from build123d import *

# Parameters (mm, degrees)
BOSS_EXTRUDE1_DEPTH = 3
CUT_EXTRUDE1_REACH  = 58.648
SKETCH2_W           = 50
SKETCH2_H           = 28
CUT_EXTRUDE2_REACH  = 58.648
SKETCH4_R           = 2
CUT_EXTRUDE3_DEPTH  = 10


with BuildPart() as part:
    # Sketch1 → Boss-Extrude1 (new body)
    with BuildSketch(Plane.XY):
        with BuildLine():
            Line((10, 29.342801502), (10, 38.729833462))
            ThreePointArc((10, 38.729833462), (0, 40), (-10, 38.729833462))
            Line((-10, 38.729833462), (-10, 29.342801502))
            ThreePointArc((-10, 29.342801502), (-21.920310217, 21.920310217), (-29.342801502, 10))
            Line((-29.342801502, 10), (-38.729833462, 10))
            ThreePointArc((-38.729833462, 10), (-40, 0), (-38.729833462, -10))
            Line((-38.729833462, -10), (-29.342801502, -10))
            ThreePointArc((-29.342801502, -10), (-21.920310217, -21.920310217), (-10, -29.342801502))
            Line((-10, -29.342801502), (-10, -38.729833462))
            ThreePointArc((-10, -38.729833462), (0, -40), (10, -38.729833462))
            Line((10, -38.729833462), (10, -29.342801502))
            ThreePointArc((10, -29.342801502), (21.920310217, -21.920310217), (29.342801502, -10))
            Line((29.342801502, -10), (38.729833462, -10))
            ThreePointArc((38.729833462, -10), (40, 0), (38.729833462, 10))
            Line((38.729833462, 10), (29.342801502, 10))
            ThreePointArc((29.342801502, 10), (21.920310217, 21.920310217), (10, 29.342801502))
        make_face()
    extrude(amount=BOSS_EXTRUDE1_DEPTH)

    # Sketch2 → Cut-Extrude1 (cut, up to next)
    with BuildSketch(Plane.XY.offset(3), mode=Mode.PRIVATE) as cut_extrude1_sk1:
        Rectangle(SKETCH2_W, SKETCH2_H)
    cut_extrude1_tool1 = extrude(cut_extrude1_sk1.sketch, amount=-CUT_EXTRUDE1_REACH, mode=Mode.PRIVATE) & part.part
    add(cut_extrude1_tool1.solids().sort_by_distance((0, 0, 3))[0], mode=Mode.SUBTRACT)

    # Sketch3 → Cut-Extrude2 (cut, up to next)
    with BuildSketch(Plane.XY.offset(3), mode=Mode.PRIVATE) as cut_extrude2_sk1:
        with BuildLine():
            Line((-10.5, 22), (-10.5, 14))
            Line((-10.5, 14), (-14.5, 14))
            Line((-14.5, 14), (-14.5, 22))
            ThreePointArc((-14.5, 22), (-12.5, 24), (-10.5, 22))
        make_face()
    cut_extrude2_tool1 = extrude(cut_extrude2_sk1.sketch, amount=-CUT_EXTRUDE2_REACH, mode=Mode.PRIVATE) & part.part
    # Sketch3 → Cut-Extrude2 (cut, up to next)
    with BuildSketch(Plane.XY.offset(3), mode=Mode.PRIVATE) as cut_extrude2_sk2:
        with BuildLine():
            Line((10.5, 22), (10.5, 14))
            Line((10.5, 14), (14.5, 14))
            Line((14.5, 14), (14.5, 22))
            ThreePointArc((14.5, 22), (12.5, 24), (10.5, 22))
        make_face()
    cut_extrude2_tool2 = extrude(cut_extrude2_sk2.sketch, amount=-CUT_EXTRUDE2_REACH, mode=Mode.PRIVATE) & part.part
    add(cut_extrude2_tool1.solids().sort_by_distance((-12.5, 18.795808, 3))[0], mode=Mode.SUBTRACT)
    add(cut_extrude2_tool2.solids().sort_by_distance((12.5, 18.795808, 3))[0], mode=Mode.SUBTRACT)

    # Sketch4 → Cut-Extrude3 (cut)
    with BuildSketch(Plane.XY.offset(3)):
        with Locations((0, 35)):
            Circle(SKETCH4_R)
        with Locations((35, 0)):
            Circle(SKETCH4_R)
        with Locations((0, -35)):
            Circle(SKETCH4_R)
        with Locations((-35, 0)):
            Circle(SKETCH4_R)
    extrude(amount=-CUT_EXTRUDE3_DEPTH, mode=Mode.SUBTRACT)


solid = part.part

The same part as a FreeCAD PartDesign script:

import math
import FreeCAD as App
import Part
import Sketcher


def add_polygon(sketch, points):
    """Adds a closed chain of lines whose ends are joined by coincident constraints."""
    first, n = sketch.GeometryCount, len(points)
    for a, b in zip(points, points[1:] + points[:1]):
        sketch.addGeometry(Part.LineSegment(App.Vector(*a, 0), App.Vector(*b, 0)), False)
    for i in range(n):
        sketch.addConstraint(Sketcher.Constraint("Coincident", first + i, 2, first + (i + 1) % n, 1))

doc = App.newDocument("Part")
body = doc.addObject("PartDesign::Body", "Body")

# Sketch on XY plane
sketch1 = doc.addObject("Sketcher::SketchObject", "Sketch")
body.addObject(sketch1)
sketch1.AttachmentSupport = (doc.XY_Plane, [""])
sketch1.MapMode = "FlatFace"
sketch1.addGeometry([
    Part.LineSegment(App.Vector(10, 29, 0), App.Vector(10, 39, 0)),  # 0
    Part.ArcOfCircle(Part.Circle(App.Vector(0, 0, 0), App.Vector(0, 0, 1), 40), math.radians(76), math.radians(104)),  # 1
    Part.LineSegment(App.Vector(-10, 39, 0), App.Vector(-10, 29, 0)),  # 2
    Part.ArcOfCircle(Part.Circle(App.Vector(0, 0, 0), App.Vector(0, 0, 1), 31), math.radians(109), math.radians(161)),  # 3
    Part.LineSegment(App.Vector(-29, 10, 0), App.Vector(-39, 10, 0)),  # 4
    Part.ArcOfCircle(Part.Circle(App.Vector(0, 0, 0), App.Vector(0, 0, 1), 40), math.radians(166), math.radians(194)),  # 5
    Part.LineSegment(App.Vector(-39, -10, 0), App.Vector(-29, -10, 0)),  # 6
    Part.ArcOfCircle(Part.Circle(App.Vector(0, 0, 0), App.Vector(0, 0, 1), 31), math.radians(-161), math.radians(-109)),  # 7
    Part.LineSegment(App.Vector(-10, -29, 0), App.Vector(-10, -39, 0)),  # 8
    Part.ArcOfCircle(Part.Circle(App.Vector(0, 0, 0), App.Vector(0, 0, 1), 40), math.radians(-104), math.radians(-76)),  # 9
    Part.LineSegment(App.Vector(10, -39, 0), App.Vector(10, -29, 0)),  # 10
    Part.ArcOfCircle(Part.Circle(App.Vector(0, 0, 0), App.Vector(0, 0, 1), 31), math.radians(-71), math.radians(-19)),  # 11
    Part.LineSegment(App.Vector(29, -10, 0), App.Vector(39, -10, 0)),  # 12
    Part.ArcOfCircle(Part.Circle(App.Vector(0, 0, 0), App.Vector(0, 0, 1), 40), math.radians(-14), math.radians(14)),  # 13
    Part.LineSegment(App.Vector(39, 10, 0), App.Vector(29, 10, 0)),  # 14
    Part.ArcOfCircle(Part.Circle(App.Vector(0, 0, 0), App.Vector(0, 0, 1), 31), math.radians(19), math.radians(71)),  # 15
], False)
sketch1.addConstraint([
    Sketcher.Constraint("Coincident", 0, 2, 1, 1),
    Sketcher.Constraint("Coincident", 1, 2, 2, 1),
    Sketcher.Constraint("Coincident", 2, 2, 3, 1),
    Sketcher.Constraint("Coincident", 3, 2, 4, 1),
    Sketcher.Constraint("Coincident", 4, 2, 5, 1),
    Sketcher.Constraint("Coincident", 5, 2, 6, 1),
    Sketcher.Constraint("Coincident", 6, 2, 7, 1),
    Sketcher.Constraint("Coincident", 7, 2, 8, 1),
    Sketcher.Constraint("Coincident", 8, 2, 9, 1),
    Sketcher.Constraint("Coincident", 9, 2, 10, 1),
    Sketcher.Constraint("Coincident", 10, 2, 11, 1),
    Sketcher.Constraint("Coincident", 11, 2, 12, 1),
    Sketcher.Constraint("Coincident", 12, 2, 13, 1),
    Sketcher.Constraint("Coincident", 13, 2, 14, 1),
    Sketcher.Constraint("Coincident", 14, 2, 15, 1),
    Sketcher.Constraint("Coincident", 15, 2, 0, 1),
    Sketcher.Constraint("Vertical", 0),
    Sketcher.Constraint("Vertical", 2),
    Sketcher.Constraint("Horizontal", 4),
    Sketcher.Constraint("Horizontal", 6),
    Sketcher.Constraint("Vertical", 8),
    Sketcher.Constraint("Vertical", 10),
    Sketcher.Constraint("Horizontal", 12),
    Sketcher.Constraint("Horizontal", 14),
    Sketcher.Constraint("Coincident", 1, 3, -1, 1),
    Sketcher.Constraint("Coincident", 3, 3, -1, 1),
    Sketcher.Constraint("Coincident", 5, 3, -1, 1),
    Sketcher.Constraint("Coincident", 7, 3, -1, 1),
    Sketcher.Constraint("Coincident", 9, 3, -1, 1),
    Sketcher.Constraint("Coincident", 11, 3, -1, 1),
    Sketcher.Constraint("Coincident", 13, 3, -1, 1),
    Sketcher.Constraint("Coincident", 15, 3, -1, 1),
    Sketcher.Constraint("Equal", 1, 5),
    Sketcher.Constraint("Equal", 3, 7),
    Sketcher.Constraint("Equal", 5, 9),
    Sketcher.Constraint("Equal", 7, 11),
    Sketcher.Constraint("Equal", 9, 13),
    Sketcher.Constraint("Equal", 11, 15),
    Sketcher.Constraint("Horizontal", 0, 2, 1, 2),
    Sketcher.Constraint("Horizontal", 8, 2, 9, 2),
    Sketcher.Constraint("Horizontal", 6, 2, 11, 2),
    Sketcher.Constraint("Horizontal", 4, 2, 13, 2),
    Sketcher.Constraint("Vertical", 4, 2, 5, 2),
    Sketcher.Constraint("Vertical", 2, 2, 7, 2),
    Sketcher.Constraint("Equal", 14, 0),
    Sketcher.Constraint("Radius", 1, 40.0),
    Sketcher.Constraint("Radius", 3, 31.0),
    Sketcher.Constraint("DistanceX", -1, 1, 0, 2, 10.0),
])
pad1 = doc.addObject("PartDesign::Pad", "Pad")
body.addObject(pad1)
pad1.Profile = sketch1
pad1.Length = 3

# Sketch on XY plane
sketch2 = doc.addObject("Sketcher::SketchObject", "Sketch001")
body.addObject(sketch2)
sketch2.AttachmentSupport = (doc.XY_Plane, [""])
sketch2.MapMode = "FlatFace"
sketch2.AttachmentOffset = App.Placement(App.Vector(0, 0, 3), App.Rotation())
add_polygon(sketch2, [(-25, 14), (-25, -14), (25, -14), (25, 14)])  # lines 0-3
sketch2.addConstraint([
    Sketcher.Constraint("Vertical", 0),
    Sketcher.Constraint("Horizontal", 1),
    Sketcher.Constraint("Vertical", 2),
    Sketcher.Constraint("Horizontal", 3),
    Sketcher.Constraint("Symmetric", 0, 2, 2, 2, -1, 1),
    Sketcher.Constraint("DistanceX", 1, 1, 1, 2, 50.0),
    Sketcher.Constraint("DistanceY", 0, 2, 0, 1, 28.0),
])
pocket1 = doc.addObject("PartDesign::Pocket", "Pocket")
body.addObject(pocket1)
pocket1.Profile = sketch2
pocket1.Type = "UpToFirst"

# Sketch on XY plane
sketch3 = doc.addObject("Sketcher::SketchObject", "Sketch002")
body.addObject(sketch3)
sketch3.AttachmentSupport = (doc.XY_Plane, [""])
sketch3.MapMode = "FlatFace"
sketch3.AttachmentOffset = App.Placement(App.Vector(0, 0, 3), App.Rotation())
sketch3.addGeometry([
    Part.LineSegment(App.Vector(-10.5, 14, 0), App.Vector(-10.5, 22, 0)),
    Part.ArcOfCircle(Part.Circle(App.Vector(-12.5, 22, 0), App.Vector(0, 0, 1), 2), math.radians(0), math.radians(180)),
    Part.LineSegment(App.Vector(-14.5, 22, 0), App.Vector(-14.5, 14, 0)),
    Part.LineSegment(App.Vector(-14.5, 14, 0), App.Vector(-10.5, 14, 0)),
], False)
sketch3.addConstraint([
    Sketcher.Constraint("Tangent", 0, 2, 1, 1),
    Sketcher.Constraint("Tangent", 1, 2, 2, 1),
    Sketcher.Constraint("Coincident", 2, 2, 3, 1),
    Sketcher.Constraint("Coincident", 3, 2, 0, 1),
    Sketcher.Constraint("Vertical", 0),
    Sketcher.Constraint("Vertical", 2),
    Sketcher.Constraint("Horizontal", 3),
    Sketcher.Constraint("Radius", 1, 2.0),
    Sketcher.Constraint("DistanceY", 0, 1, 0, 2, 8.0),
    Sketcher.Constraint("DistanceY", -1, 1, 1, 3, 22.0),
    Sketcher.Constraint("DistanceX", 1, 3, -1, 1, 12.5),
])
pocket2 = doc.addObject("PartDesign::Pocket", "Pocket001")
body.addObject(pocket2)
pocket2.Profile = sketch3
pocket2.Type = "UpToFirst"

# Sketch on XY plane
sketch4 = doc.addObject("Sketcher::SketchObject", "Sketch003")
body.addObject(sketch4)
sketch4.AttachmentSupport = (doc.XY_Plane, [""])
sketch4.MapMode = "FlatFace"
sketch4.AttachmentOffset = App.Placement(App.Vector(0, 0, 3), App.Rotation())
sketch4.addGeometry([
    Part.LineSegment(App.Vector(10.5, 22, 0), App.Vector(10.5, 14, 0)),
    Part.LineSegment(App.Vector(10.5, 14, 0), App.Vector(14.5, 14, 0)),
    Part.LineSegment(App.Vector(14.5, 14, 0), App.Vector(14.5, 22, 0)),
    Part.ArcOfCircle(Part.Circle(App.Vector(12.5, 22, 0), App.Vector(0, 0, 1), 2), math.radians(0), math.radians(180)),
], False)
sketch4.addConstraint([
    Sketcher.Constraint("Coincident", 0, 2, 1, 1),
    Sketcher.Constraint("Coincident", 1, 2, 2, 1),
    Sketcher.Constraint("Tangent", 2, 2, 3, 1),
    Sketcher.Constraint("Tangent", 3, 2, 0, 1),
    Sketcher.Constraint("Vertical", 0),
    Sketcher.Constraint("Horizontal", 1),
    Sketcher.Constraint("Vertical", 2),
    Sketcher.Constraint("Radius", 3, 2.0),
    Sketcher.Constraint("DistanceY", 0, 2, 0, 1, 8.0),
    Sketcher.Constraint("DistanceY", -1, 1, 3, 3, 22.0),
    Sketcher.Constraint("DistanceX", -1, 1, 3, 3, 12.5),
])
pocket3 = doc.addObject("PartDesign::Pocket", "Pocket002")
body.addObject(pocket3)
pocket3.Profile = sketch4
pocket3.Type = "UpToFirst"

# Sketch on XY plane
sketch5 = doc.addObject("Sketcher::SketchObject", "Sketch004")
body.addObject(sketch5)
sketch5.AttachmentSupport = (doc.XY_Plane, [""])
sketch5.MapMode = "FlatFace"
sketch5.AttachmentOffset = App.Placement(App.Vector(0, 0, 3), App.Rotation())
sketch5.addGeometry([
    Part.Circle(App.Vector(0, 35, 0), App.Vector(0, 0, 1), 2),
    Part.Circle(App.Vector(35, 0, 0), App.Vector(0, 0, 1), 2),
    Part.Circle(App.Vector(0, -35, 0), App.Vector(0, 0, 1), 2),
    Part.Circle(App.Vector(-35, 0, 0), App.Vector(0, 0, 1), 2),
], False)
sketch5.addConstraint([
    Sketcher.Constraint("Equal", 0, 1),
    Sketcher.Constraint("Equal", 1, 2),
    Sketcher.Constraint("Equal", 2, 3),
    Sketcher.Constraint("Symmetric", 0, 3, 2, 3, -1, 1),
    Sketcher.Constraint("Symmetric", 1, 3, 3, 3, -1, 1),
    Sketcher.Constraint("PointOnObject", 0, 3, -2),
    Sketcher.Constraint("PointOnObject", 1, 3, -1),
    Sketcher.Constraint("Diameter", 0, 4.0),
    Sketcher.Constraint("DistanceY", -1, 1, 0, 3, 35.0),
    Sketcher.Constraint("DistanceX", -1, 1, 1, 3, 35.0),
])
pocket4 = doc.addObject("PartDesign::Pocket", "Pocket003")
body.addObject(pocket4)
pocket4.Profile = sketch5
pocket4.Length = 10

doc.recompute()
